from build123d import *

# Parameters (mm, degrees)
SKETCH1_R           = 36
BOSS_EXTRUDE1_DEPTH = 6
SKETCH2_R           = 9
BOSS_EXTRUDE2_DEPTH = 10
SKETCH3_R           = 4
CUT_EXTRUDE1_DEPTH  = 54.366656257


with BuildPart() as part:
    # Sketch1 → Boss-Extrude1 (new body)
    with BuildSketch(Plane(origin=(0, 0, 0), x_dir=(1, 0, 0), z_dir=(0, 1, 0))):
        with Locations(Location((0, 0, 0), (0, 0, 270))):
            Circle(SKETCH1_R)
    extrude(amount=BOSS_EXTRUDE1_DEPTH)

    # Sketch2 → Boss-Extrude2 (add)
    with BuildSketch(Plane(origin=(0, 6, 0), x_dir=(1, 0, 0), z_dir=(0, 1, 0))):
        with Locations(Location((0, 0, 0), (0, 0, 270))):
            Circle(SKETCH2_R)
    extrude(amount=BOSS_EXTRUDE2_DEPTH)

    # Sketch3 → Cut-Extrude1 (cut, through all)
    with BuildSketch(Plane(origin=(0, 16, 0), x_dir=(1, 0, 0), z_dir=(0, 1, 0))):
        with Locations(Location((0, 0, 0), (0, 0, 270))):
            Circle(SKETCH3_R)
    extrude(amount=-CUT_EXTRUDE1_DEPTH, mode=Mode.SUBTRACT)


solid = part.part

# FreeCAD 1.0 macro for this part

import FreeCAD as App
import Part
import Sketcher

V = App.Vector
Q = App.Units.Quantity

doc = App.newDocument("Part")
params = doc.addObject("Spreadsheet::Sheet", "Params")
for row, (alias, value) in enumerate([
    ("sketch1_diameter", "72 mm"),
    ("pad1_length", "6 mm"),
    ("sketch2_diameter", "18 mm"),
    ("pad2_length", "10 mm"),
    ("sketch3_diameter", "8 mm"),
], start=1):
    params.set(f"A{row}", alias)
    params.set(f"B{row}", "=" + value)
    params.setAlias(f"B{row}", alias)

body = doc.addObject("PartDesign::Body", "Body")

# Sketch on XZ plane
sketch1 = body.newObject("Sketcher::SketchObject", "Sketch")
sketch1.AttachmentSupport = (doc.getObject("XZ_Plane"), [""])
sketch1.MapMode = "FlatFace"
sketch1.addGeometry(Part.Circle(V(0, 0, 0), V(0, 0, 1), 36), False)
sketch1.addConstraint([
    Sketcher.Constraint("Coincident", 0, 3, -1, 1),
    Sketcher.Constraint("Diameter", 0, Q("72 mm")),
])
sketch1.setExpression("Constraints[1]", "Params.sketch1_diameter")
pad1 = body.newObject("PartDesign::Pad", "Pad")
pad1.Profile = sketch1
pad1.setExpression("Length", "Params.pad1_length")
pad1.Reversed = True

# Sketch on XZ plane
sketch2 = body.newObject("Sketcher::SketchObject", "Sketch001")
sketch2.AttachmentSupport = (doc.getObject("XZ_Plane"), [""])
sketch2.MapMode = "FlatFace"
sketch2.AttachmentOffset = App.Placement(V(0, 0, -6), App.Rotation())
sketch2.addGeometry(Part.Circle(V(0, 0, 0), V(0, 0, 1), 9), False)
sketch2.addConstraint([
    Sketcher.Constraint("Coincident", 0, 3, -1, 1),
    Sketcher.Constraint("Diameter", 0, Q("18 mm")),
])
sketch2.setExpression("Constraints[1]", "Params.sketch2_diameter")
pad2 = body.newObject("PartDesign::Pad", "Pad001")
pad2.Profile = sketch2
pad2.setExpression("Length", "Params.pad2_length")
pad2.Reversed = True

# Sketch on XZ plane
sketch3 = body.newObject("Sketcher::SketchObject", "Sketch002")
sketch3.AttachmentSupport = (doc.getObject("XZ_Plane"), [""])
sketch3.MapMode = "FlatFace"
sketch3.AttachmentOffset = App.Placement(V(0, 0, -16), App.Rotation())
sketch3.addGeometry(Part.Circle(V(0, 0, 0), V(0, 0, 1), 4), False)
sketch3.addConstraint([
    Sketcher.Constraint("Coincident", 0, 3, -1, 1),
    Sketcher.Constraint("Diameter", 0, Q("8 mm")),
])
sketch3.setExpression("Constraints[1]", "Params.sketch3_diameter")
pocket1 = body.newObject("PartDesign::Pocket", "Pocket")
pocket1.Profile = sketch3
pocket1.Type = "ThroughAll"
pocket1.Reversed = True

doc.recompute()
